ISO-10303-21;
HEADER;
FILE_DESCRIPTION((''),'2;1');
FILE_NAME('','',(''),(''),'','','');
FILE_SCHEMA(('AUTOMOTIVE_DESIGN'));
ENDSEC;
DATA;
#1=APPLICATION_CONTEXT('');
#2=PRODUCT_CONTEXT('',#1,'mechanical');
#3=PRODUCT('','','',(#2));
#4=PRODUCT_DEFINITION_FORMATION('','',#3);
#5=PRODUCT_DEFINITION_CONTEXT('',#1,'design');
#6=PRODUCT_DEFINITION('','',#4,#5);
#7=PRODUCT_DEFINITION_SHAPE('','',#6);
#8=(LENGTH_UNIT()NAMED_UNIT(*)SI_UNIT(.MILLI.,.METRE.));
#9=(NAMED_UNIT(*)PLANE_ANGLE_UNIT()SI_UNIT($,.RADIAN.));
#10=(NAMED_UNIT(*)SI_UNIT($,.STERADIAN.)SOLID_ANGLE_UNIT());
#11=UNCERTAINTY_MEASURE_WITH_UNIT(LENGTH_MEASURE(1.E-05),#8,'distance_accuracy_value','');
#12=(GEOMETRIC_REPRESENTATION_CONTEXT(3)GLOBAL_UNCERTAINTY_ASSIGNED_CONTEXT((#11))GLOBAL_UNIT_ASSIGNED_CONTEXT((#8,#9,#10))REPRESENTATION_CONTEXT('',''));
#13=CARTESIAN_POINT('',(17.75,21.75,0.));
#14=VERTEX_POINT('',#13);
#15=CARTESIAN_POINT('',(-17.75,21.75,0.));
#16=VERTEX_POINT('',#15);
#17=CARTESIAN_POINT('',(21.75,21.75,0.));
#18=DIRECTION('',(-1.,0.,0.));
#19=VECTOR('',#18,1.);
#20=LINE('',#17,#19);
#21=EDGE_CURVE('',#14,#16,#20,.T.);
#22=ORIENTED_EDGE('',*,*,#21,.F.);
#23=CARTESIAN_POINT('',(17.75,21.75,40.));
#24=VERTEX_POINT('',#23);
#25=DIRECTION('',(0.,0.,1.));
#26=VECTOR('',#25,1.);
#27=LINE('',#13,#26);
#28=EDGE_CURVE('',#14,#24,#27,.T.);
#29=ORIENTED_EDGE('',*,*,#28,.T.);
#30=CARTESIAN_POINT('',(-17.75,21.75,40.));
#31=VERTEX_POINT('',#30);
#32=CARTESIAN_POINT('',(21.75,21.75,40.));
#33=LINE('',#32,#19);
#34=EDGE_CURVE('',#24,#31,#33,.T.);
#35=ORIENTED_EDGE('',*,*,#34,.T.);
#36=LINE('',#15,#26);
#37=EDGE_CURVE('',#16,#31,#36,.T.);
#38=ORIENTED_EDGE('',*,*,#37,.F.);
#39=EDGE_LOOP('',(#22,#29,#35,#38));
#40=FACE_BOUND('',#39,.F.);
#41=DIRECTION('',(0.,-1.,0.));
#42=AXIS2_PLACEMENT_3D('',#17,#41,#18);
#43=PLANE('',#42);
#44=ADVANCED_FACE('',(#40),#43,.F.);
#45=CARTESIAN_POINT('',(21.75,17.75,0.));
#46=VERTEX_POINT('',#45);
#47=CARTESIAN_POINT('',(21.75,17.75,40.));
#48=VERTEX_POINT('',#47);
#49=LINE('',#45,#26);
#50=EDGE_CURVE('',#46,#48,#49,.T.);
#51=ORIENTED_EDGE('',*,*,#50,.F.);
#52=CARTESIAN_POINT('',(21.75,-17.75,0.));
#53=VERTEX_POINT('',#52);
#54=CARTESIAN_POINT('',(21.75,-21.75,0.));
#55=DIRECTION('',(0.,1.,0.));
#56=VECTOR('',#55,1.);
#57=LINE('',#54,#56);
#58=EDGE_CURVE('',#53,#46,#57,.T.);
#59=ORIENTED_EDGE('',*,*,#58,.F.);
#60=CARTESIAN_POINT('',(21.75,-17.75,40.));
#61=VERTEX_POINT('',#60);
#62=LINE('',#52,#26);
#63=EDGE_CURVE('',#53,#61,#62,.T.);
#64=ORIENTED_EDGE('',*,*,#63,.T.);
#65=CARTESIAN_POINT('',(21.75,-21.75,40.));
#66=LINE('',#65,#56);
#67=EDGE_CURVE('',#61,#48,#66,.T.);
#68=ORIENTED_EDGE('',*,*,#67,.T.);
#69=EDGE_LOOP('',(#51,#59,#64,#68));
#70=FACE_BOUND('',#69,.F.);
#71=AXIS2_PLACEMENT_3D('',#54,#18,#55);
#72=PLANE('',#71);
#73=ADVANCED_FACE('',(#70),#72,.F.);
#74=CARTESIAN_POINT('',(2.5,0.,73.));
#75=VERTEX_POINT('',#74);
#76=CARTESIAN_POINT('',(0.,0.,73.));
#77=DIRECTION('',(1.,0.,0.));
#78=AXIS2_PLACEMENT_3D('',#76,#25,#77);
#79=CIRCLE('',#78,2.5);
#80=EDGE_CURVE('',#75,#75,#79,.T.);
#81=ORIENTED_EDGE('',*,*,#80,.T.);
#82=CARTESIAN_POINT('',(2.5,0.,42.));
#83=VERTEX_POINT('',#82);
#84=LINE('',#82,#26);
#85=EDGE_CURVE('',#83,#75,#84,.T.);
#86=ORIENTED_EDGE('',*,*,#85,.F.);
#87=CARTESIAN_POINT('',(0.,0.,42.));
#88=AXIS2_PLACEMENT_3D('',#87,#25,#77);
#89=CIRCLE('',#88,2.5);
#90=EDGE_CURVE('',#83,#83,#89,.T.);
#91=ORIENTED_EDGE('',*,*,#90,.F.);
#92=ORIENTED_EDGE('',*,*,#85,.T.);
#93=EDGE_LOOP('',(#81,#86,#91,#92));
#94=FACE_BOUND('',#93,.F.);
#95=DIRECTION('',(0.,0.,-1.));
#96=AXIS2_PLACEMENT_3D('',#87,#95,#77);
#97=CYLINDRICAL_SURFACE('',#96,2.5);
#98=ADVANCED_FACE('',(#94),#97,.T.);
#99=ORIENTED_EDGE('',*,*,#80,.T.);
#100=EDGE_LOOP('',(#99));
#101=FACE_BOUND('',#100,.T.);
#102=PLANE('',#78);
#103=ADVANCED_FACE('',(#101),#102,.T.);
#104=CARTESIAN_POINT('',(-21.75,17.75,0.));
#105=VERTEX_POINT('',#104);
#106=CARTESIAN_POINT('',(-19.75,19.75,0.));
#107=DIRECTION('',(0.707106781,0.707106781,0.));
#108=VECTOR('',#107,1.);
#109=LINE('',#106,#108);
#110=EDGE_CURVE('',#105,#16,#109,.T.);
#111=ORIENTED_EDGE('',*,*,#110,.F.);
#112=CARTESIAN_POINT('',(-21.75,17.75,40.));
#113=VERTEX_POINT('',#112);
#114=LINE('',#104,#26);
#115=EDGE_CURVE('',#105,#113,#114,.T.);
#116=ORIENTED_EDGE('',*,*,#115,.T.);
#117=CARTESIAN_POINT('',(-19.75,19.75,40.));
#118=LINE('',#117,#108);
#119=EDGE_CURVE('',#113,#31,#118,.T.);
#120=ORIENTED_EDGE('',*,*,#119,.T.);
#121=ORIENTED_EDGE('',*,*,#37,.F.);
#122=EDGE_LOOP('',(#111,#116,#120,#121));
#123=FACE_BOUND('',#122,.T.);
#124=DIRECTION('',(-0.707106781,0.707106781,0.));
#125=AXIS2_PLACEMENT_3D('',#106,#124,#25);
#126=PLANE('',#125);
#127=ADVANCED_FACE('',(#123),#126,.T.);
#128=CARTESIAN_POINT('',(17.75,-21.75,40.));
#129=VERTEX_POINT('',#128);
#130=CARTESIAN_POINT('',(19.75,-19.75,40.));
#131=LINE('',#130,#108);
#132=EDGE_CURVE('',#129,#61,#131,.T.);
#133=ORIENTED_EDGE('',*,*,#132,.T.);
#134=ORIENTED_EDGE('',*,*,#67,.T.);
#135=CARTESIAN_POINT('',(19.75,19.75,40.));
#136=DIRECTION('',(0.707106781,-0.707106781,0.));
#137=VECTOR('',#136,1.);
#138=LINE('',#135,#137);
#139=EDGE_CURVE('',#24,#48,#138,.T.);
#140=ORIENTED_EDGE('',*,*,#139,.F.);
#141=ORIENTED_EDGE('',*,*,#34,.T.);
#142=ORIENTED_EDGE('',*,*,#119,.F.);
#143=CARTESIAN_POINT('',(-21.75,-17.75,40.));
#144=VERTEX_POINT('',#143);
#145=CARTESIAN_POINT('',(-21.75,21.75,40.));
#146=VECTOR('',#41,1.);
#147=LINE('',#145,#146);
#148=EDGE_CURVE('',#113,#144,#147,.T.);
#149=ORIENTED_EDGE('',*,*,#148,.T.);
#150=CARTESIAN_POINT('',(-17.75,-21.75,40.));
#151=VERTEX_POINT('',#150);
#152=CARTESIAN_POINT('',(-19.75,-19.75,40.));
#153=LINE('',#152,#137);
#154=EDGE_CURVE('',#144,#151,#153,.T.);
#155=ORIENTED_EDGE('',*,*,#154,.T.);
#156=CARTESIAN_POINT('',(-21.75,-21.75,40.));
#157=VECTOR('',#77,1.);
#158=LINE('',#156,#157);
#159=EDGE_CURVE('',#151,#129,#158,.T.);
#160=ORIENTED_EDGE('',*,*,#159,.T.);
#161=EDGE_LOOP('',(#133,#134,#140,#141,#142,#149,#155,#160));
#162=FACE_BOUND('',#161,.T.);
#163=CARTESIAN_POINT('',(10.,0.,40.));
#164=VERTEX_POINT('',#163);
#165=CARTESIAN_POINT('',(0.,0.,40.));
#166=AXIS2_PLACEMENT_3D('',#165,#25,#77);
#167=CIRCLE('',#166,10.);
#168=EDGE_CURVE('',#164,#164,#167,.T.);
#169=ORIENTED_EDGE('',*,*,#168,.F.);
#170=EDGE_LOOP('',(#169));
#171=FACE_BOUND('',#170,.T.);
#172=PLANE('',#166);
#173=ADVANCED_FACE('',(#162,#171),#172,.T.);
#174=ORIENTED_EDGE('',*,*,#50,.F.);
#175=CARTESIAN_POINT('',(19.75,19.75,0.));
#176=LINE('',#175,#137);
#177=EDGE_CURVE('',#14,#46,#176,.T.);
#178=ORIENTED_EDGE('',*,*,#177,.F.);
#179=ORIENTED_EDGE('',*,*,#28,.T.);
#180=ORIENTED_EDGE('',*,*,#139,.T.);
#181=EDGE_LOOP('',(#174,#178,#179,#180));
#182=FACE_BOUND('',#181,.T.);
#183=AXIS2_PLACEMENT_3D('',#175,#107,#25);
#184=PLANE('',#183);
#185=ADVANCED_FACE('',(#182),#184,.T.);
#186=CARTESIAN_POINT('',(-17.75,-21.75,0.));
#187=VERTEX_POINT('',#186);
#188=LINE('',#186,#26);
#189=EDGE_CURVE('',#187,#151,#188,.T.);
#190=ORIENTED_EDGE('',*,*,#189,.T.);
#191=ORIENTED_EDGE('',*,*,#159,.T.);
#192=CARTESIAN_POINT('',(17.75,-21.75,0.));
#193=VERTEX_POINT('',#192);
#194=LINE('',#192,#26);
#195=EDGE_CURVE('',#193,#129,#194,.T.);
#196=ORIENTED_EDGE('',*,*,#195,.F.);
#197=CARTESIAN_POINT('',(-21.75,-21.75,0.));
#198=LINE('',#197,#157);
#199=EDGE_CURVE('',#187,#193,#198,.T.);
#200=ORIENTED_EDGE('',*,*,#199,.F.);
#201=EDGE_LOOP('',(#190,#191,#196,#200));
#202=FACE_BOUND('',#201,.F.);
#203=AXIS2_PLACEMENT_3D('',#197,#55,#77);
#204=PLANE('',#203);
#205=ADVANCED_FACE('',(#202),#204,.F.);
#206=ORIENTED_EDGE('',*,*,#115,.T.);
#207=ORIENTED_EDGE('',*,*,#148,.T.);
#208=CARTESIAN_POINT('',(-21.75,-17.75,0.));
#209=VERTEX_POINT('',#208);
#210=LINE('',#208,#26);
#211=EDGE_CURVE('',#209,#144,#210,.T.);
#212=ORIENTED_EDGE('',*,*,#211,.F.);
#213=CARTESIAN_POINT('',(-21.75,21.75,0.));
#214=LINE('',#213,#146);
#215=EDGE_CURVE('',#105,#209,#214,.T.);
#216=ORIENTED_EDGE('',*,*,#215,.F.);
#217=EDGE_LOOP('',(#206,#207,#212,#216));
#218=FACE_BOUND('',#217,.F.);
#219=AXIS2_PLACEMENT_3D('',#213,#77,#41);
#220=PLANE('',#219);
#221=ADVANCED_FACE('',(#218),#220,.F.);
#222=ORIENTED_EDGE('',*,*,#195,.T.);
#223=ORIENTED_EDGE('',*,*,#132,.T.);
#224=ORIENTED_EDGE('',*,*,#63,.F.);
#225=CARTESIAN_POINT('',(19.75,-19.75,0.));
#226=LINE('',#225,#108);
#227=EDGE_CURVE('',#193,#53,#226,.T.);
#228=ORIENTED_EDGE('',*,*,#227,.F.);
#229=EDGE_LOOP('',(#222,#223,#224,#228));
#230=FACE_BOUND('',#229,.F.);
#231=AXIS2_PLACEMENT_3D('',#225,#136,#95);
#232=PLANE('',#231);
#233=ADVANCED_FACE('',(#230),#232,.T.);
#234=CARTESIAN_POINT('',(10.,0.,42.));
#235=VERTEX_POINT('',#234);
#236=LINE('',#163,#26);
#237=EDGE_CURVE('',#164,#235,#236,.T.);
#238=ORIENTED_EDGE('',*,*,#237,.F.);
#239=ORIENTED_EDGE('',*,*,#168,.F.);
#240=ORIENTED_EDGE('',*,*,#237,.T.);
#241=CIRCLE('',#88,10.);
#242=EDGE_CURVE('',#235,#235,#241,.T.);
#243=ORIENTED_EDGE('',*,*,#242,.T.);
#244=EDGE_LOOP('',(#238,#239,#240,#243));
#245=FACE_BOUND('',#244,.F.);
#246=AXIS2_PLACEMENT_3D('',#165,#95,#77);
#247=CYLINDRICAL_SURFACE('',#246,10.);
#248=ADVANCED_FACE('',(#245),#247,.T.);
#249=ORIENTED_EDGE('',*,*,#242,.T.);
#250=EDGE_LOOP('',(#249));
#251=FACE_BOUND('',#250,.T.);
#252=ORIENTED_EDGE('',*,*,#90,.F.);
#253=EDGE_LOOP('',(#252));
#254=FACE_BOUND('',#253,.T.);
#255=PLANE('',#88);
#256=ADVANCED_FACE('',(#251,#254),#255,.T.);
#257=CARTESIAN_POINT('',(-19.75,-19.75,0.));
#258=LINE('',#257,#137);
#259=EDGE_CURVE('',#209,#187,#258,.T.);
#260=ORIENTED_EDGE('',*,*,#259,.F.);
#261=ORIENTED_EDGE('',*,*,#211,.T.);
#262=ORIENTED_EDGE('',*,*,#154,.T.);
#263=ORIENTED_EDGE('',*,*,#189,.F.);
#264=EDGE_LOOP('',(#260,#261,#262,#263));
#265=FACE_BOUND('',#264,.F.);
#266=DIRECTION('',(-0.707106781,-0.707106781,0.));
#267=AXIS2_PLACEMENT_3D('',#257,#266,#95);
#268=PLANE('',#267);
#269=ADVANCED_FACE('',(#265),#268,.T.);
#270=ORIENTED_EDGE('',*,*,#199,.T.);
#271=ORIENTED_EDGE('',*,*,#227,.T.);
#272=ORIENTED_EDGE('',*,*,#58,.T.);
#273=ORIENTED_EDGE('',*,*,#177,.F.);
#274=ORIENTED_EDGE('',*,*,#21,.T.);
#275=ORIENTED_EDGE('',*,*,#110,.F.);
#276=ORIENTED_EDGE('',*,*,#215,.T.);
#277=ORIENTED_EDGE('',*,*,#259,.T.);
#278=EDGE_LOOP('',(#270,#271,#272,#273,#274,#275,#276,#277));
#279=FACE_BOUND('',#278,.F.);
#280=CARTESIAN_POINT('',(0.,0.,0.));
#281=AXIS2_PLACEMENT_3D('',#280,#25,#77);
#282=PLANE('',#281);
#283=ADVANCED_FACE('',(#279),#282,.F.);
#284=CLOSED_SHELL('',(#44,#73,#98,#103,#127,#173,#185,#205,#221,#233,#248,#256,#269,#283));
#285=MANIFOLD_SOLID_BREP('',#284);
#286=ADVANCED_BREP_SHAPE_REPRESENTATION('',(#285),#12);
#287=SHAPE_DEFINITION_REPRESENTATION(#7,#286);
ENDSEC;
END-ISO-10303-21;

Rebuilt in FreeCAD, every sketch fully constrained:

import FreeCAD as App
import Part
import Sketcher

V = App.Vector


def edges_at(feature, points):
    """Names of the edges that pass closest to the given points."""
    edges = feature.Shape.Edges
    near = lambda p: min(range(len(edges)), key=lambda i: edges[i].distToShape(Part.Vertex(*p))[0])
    return sorted({f"Edge{near(p) + 1}" for p in points})


def add_polygon(sketch, points):
    """Adds a closed chain of lines whose ends are joined by coincident constraints."""
    first, n = sketch.GeometryCount, len(points)
    for a, b in zip(points, points[1:] + points[:1]):
        sketch.addGeometry(Part.LineSegment(App.Vector(*a, 0), App.Vector(*b, 0)), False)
    for i in range(n):
        sketch.addConstraint(Sketcher.Constraint("Coincident", first + i, 2, first + (i + 1) % n, 1))

doc = App.newDocument("Part")
params = doc.addObject("Spreadsheet::Sheet", "Params")
for row, (alias, value) in enumerate([
    ("sketch1_width", "43.5 mm"),
    ("pad1_length", "40 mm"),
    ("sketch2_diameter", "20 mm"),
    ("pad2_length", "2 mm"),
    ("sketch3_diameter", "5 mm"),
    ("pad3_length", "31 mm"),
    ("chamfer_size", "4 mm"),
], start=1):
    params.set(f"A{row}", alias)
    params.set(f"B{row}", "=" + value)
    params.setAlias(f"B{row}", alias)

body = doc.addObject("PartDesign::Body", "Body")

sketch1 = body.newObject("Sketcher::SketchObject", "Sketch")
sketch1.AttachmentSupport = (doc.getObject("XY_Plane"), [""])
sketch1.MapMode = "FlatFace"
add_polygon(sketch1, [(-22, 22), (-22, -22), (22, -22), (22, 22)])
sketch1.addConstraint([
    Sketcher.Constraint("Vertical", 0),
    Sketcher.Constraint("Horizontal", 1),
    Sketcher.Constraint("Vertical", 2),
    Sketcher.Constraint("Horizontal", 3),
    Sketcher.Constraint("Symmetric", 0, 2, 2, 2, -1, 1),
    Sketcher.Constraint("Equal", 3, 0),
    Sketcher.Constraint("DistanceX", 1, 1, 1, 2, 43.5),
])
sketch1.setExpression("Constraints[10]", "Params.sketch1_width")
pad1 = body.newObject("PartDesign::Pad", "Pad")
pad1.Profile = sketch1
pad1.setExpression("Length", "Params.pad1_length")

sketch2 = body.newObject("Sketcher::SketchObject", "Sketch001")
sketch2.AttachmentSupport = (doc.getObject("XY_Plane"), [""])
sketch2.MapMode = "FlatFace"
sketch2.AttachmentOffset = App.Placement(V(0, 0, 40), App.Rotation())
sketch2.addGeometry(Part.Circle(V(0, 0, 0), V(0, 0, 1), 10), False)
sketch2.addConstraint([
    Sketcher.Constraint("Coincident", 0, 3, -1, 1),
    Sketcher.Constraint("Diameter", 0, 20.0),
])
sketch2.setExpression("Constraints[1]", "Params.sketch2_diameter")
pad2 = body.newObject("PartDesign::Pad", "Pad001")
pad2.Profile = sketch2
pad2.setExpression("Length", "Params.pad2_length")

sketch3 = body.newObject("Sketcher::SketchObject", "Sketch002")
sketch3.AttachmentSupport = (doc.getObject("XY_Plane"), [""])
sketch3.MapMode = "FlatFace"
sketch3.AttachmentOffset = App.Placement(V(0, 0, 42), App.Rotation())
sketch3.addGeometry(Part.Circle(V(0, 0, 0), V(0, 0, 1), 2.5), False)
sketch3.addConstraint([
    Sketcher.Constraint("Coincident", 0, 3, -1, 1),
    Sketcher.Constraint("Diameter", 0, 5.0),
])
sketch3.setExpression("Constraints[1]", "Params.sketch3_diameter")
pad3 = body.newObject("PartDesign::Pad", "Pad002")
pad3.Profile = sketch3
pad3.setExpression("Length", "Params.pad3_length")
doc.recompute()

chamfer = body.newObject("PartDesign::Chamfer", "Chamfer")
chamfer.Base = (pad3, edges_at(pad3, [
    (21.75, 21.75, 20),
    (-21.75, 21.75, 20),
    (21.75, -21.75, 20),
    (-21.75, -21.75, 20),
]))
chamfer.setExpression("Size", "Params.chamfer_size")

doc.recompute()
